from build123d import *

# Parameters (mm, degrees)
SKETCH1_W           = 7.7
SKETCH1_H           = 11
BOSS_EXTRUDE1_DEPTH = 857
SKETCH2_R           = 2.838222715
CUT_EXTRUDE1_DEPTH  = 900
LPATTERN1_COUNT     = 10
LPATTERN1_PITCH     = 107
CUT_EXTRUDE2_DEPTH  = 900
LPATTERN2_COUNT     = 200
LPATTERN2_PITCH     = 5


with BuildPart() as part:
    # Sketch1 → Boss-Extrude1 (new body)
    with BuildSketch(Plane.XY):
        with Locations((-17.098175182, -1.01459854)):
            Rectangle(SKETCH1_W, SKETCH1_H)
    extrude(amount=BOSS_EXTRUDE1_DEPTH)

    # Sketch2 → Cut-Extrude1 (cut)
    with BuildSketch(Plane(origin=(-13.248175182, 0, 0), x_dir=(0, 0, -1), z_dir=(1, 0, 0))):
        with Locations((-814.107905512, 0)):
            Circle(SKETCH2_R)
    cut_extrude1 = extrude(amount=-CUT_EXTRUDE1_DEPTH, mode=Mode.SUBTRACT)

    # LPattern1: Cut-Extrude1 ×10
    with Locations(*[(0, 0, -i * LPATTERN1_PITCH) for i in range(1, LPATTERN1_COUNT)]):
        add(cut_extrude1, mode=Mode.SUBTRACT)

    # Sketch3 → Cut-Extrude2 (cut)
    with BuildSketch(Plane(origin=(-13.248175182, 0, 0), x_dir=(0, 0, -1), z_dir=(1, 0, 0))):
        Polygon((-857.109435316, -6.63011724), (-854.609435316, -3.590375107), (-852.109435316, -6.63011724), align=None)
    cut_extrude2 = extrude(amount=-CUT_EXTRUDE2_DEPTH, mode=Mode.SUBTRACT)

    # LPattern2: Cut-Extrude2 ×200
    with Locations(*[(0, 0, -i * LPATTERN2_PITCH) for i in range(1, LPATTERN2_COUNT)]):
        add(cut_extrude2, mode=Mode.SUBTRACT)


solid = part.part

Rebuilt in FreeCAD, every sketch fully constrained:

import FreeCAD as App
import Part
import Sketcher


def add_polygon(sketch, points):
    """Adds a closed chain of lines whose ends are joined by coincident constraints."""
    first, n = sketch.GeometryCount, len(points)
    for a, b in zip(points, points[1:] + points[:1]):
        sketch.addGeometry(Part.LineSegment(App.Vector(*a, 0), App.Vector(*b, 0)), False)
    for i in range(n):
        sketch.addConstraint(Sketcher.Constraint("Coincident", first + i, 2, first + (i + 1) % n, 1))

doc = App.newDocument("Part")
body = doc.addObject("PartDesign::Body", "Body")

sketch1 = body.newObject("Sketcher::SketchObject", "Sketch")
sketch1.AttachmentSupport = (doc.getObject("XY_Plane"), [""])
sketch1.MapMode = "FlatFace"
add_polygon(sketch1, [(-20.948175, 4.485401), (-20.948175, -6.514599), (-13.248175, -6.514599), (-13.248175, 4.485401)])
sketch1.addConstraint(Sketcher.Constraint("Vertical", 0))
sketch1.addConstraint(Sketcher.Constraint("Horizontal", 1))
sketch1.addConstraint(Sketcher.Constraint("Vertical", 2))
sketch1.addConstraint(Sketcher.Constraint("Horizontal", 3))
sketch1.addConstraint(Sketcher.Constraint("DistanceY", 0, 2, 0, 1, 11.0))
sketch1.addConstraint(Sketcher.Constraint("DistanceX", 1, 1, 1, 2, 7.7))
sketch1.addConstraint(Sketcher.Constraint("DistanceY", 0, 2, -1, 1, 6.514599))
sketch1.addConstraint(Sketcher.Constraint("DistanceX", 0, 2, -1, 1, 20.948175))
pad1 = body.newObject("PartDesign::Pad", "Pad")
pad1.Profile = sketch1
pad1.Length = 857

sketch2 = body.newObject("Sketcher::SketchObject", "Sketch001")
sketch2.AttachmentSupport = (doc.getObject("YZ_Plane"), [""])
sketch2.MapMode = "FlatFace"
sketch2.AttachmentOffset = App.Placement(App.Vector(0, 0, -13.248175), App.Rotation())
sketch2.addGeometry(Part.Circle(App.Vector(0, 814.107906, 0), App.Vector(0, 0, 1), 2.838223), False)
sketch2.addConstraint(Sketcher.Constraint("PointOnObject", 0, 3, -2))
sketch2.addConstraint(Sketcher.Constraint("Diameter", 0, 5.676445))
sketch2.addConstraint(Sketcher.Constraint("DistanceY", -1, 1, 0, 3, 814.107906))
pocket1 = body.newObject("PartDesign::Pocket", "Pocket")
pocket1.Profile = sketch2
pocket1.Length = 900
doc.recompute()

linearpattern = body.newObject("PartDesign::LinearPattern", "LinearPattern")
linearpattern.Originals = [pocket1]
linearpattern.Direction = (doc.getObject("Z_Axis"), [""])
linearpattern.Mode = "offset"
linearpattern.Offset = 107
linearpattern.Occurrences = 10
linearpattern.Reversed = True
body.Tip = linearpattern

sketch3 = body.newObject("Sketcher::SketchObject", "Sketch002")
sketch3.AttachmentSupport = (doc.getObject("YZ_Plane"), [""])
sketch3.MapMode = "FlatFace"
sketch3.AttachmentOffset = App.Placement(App.Vector(0, 0, -13.248175), App.Rotation())
add_polygon(sketch3, [(-3.590375, 854.609435), (-6.630117, 857.109435), (-6.630117, 852.109435)])
sketch3.addConstraint(Sketcher.Constraint("Vertical", 1))
sketch3.addConstraint(Sketcher.Constraint("Equal", 0, 2))
sketch3.addConstraint(Sketcher.Constraint("DistanceY", 1, 2, 1, 1, 5.0))
sketch3.addConstraint(Sketcher.Constraint("Distance", 0, 3.935738))
sketch3.addConstraint(Sketcher.Constraint("DistanceX", 0, 2, -1, 1, 6.630117))
sketch3.addConstraint(Sketcher.Constraint("DistanceY", -1, 1, 0, 2, 857.109435))
pocket2 = body.newObject("PartDesign::Pocket", "Pocket001")
pocket2.Profile = sketch3
pocket2.Length = 900
doc.recompute()

linearpattern2 = body.newObject("PartDesign::LinearPattern", "LinearPattern001")
linearpattern2.Originals = [pocket2]
linearpattern2.Direction = (doc.getObject("Z_Axis"), [""])
linearpattern2.Mode = "offset"
linearpattern2.Offset = 5
linearpattern2.Occurrences = 200
linearpattern2.Reversed = True
body.Tip = linearpattern2

doc.recompute()
